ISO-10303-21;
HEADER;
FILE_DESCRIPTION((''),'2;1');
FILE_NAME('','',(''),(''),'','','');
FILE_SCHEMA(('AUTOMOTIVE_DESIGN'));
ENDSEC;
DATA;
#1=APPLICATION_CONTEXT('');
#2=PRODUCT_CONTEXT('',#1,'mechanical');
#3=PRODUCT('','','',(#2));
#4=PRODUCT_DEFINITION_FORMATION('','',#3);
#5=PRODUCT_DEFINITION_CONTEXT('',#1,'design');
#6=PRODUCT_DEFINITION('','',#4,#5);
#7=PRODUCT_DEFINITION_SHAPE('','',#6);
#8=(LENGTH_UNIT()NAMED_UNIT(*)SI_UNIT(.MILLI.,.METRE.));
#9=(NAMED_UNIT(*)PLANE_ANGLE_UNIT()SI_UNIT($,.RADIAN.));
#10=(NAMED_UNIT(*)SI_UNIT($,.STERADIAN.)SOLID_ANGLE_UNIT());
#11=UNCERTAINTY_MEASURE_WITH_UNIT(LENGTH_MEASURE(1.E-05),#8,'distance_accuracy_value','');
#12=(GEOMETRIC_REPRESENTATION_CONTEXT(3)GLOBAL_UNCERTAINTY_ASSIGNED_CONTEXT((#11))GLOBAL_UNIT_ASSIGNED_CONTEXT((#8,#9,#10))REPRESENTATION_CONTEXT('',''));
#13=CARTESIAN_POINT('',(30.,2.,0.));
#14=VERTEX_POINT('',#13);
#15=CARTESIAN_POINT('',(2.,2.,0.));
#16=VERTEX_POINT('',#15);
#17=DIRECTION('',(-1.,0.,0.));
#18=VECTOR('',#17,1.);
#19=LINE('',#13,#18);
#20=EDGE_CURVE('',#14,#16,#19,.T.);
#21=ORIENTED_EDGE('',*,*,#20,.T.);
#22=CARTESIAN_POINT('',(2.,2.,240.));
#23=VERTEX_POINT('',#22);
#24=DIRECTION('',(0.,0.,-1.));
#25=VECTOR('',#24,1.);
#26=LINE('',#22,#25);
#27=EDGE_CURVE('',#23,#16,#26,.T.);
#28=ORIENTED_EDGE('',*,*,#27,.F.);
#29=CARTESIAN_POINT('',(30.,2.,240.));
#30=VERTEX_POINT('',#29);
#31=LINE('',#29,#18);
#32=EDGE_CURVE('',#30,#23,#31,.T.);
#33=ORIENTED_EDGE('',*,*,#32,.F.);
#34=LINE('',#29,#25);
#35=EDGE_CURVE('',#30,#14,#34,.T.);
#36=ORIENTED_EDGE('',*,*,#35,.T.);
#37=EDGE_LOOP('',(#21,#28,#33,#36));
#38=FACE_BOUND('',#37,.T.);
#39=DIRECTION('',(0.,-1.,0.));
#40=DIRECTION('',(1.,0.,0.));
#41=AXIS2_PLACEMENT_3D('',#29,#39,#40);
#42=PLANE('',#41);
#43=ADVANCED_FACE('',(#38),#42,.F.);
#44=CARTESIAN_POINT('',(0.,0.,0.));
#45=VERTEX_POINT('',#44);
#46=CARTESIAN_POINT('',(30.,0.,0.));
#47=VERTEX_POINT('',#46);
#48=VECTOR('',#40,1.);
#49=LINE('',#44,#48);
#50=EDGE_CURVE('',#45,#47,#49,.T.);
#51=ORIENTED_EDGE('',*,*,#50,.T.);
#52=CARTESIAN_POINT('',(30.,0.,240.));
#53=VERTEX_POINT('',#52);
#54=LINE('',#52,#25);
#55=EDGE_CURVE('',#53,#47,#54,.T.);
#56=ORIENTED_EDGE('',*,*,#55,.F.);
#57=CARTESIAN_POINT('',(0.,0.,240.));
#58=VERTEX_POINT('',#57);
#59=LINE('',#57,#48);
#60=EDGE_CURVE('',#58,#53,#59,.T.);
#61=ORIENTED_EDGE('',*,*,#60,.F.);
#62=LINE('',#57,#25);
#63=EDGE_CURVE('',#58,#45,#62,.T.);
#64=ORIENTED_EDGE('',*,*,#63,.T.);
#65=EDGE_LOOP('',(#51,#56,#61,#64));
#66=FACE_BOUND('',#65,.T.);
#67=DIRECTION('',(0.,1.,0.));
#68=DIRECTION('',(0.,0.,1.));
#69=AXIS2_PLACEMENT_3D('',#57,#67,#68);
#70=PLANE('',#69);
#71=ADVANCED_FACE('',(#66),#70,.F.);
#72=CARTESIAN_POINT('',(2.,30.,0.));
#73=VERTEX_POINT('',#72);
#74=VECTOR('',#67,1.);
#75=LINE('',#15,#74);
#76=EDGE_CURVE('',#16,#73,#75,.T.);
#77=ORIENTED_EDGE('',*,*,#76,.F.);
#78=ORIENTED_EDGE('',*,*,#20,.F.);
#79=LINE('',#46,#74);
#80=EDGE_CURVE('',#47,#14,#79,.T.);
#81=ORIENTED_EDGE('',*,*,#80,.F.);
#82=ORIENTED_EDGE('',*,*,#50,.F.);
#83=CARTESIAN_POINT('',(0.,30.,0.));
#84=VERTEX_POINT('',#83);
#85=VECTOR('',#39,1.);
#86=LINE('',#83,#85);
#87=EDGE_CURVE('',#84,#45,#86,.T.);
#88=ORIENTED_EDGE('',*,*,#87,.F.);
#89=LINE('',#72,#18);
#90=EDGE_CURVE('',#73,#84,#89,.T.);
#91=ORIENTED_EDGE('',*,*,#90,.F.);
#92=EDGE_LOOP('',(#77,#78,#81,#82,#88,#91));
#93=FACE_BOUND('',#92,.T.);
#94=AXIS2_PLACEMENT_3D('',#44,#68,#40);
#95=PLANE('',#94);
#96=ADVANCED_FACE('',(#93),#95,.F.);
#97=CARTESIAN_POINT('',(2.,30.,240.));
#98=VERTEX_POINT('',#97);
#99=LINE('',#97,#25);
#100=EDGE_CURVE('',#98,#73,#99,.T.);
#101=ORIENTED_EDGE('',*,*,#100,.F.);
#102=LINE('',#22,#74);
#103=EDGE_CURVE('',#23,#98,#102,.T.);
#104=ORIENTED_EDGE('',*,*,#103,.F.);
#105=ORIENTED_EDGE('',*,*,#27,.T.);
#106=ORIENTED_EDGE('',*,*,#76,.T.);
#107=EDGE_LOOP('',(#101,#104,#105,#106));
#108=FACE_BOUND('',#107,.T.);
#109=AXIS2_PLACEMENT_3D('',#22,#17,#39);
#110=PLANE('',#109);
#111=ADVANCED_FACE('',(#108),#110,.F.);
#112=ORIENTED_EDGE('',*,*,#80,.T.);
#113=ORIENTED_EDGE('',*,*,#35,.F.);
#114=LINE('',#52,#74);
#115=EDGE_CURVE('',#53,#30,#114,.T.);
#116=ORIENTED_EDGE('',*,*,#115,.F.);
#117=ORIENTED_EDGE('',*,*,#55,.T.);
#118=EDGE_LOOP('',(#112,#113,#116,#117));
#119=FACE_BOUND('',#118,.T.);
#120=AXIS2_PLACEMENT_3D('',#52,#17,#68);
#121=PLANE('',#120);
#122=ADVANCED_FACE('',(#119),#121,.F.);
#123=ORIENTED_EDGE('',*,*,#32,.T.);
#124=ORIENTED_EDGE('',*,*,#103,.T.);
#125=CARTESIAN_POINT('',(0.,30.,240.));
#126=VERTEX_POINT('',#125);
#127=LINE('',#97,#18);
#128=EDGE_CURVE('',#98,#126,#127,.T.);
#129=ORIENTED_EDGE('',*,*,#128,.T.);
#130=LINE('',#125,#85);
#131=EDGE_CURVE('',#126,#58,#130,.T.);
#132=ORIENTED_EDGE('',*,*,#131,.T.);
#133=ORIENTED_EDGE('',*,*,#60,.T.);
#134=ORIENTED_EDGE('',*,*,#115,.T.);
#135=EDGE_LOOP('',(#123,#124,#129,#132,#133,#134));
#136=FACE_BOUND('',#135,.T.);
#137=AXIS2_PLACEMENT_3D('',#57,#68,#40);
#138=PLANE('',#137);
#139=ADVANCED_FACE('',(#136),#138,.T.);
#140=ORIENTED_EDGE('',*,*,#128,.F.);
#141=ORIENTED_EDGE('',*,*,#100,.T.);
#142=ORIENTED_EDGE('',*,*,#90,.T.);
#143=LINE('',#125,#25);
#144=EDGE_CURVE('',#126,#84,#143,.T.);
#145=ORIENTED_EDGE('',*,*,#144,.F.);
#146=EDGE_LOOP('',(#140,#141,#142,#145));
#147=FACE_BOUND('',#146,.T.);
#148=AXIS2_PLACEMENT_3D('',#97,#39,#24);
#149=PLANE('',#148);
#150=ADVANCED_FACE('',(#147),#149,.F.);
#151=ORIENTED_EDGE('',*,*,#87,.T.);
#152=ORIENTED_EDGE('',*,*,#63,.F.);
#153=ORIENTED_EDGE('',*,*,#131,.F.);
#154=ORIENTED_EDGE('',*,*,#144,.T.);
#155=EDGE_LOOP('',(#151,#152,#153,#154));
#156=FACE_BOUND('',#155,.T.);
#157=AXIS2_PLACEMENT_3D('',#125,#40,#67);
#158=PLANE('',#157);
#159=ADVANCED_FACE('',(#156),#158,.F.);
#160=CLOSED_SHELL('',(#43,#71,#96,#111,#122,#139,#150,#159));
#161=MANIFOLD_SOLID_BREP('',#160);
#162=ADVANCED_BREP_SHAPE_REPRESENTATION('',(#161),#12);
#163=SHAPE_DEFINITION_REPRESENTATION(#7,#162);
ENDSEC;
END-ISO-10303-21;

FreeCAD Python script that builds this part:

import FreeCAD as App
import Part
import Sketcher

doc = App.newDocument("Part")
params = doc.addObject("Spreadsheet::Sheet", "Params")
for row, (alias, value) in enumerate([
    ("sketch1_width", "30 mm"),
    ("sketch1_width2", "28 mm"),
    ("pad1_length", "240 mm"),
], start=1):
    params.set(f"A{row}", alias)
    params.set(f"B{row}", "=" + value)
    params.setAlias(f"B{row}", alias)

body = doc.addObject("PartDesign::Body", "Body")

sketch1 = body.newObject("Sketcher::SketchObject", "Sketch")
sketch1.AttachmentSupport = (doc.getObject("XY_Plane"), [""])
sketch1.MapMode = "FlatFace"
sketch1.addGeometry(Part.LineSegment(App.Vector(0, 0, 0), App.Vector(30, 0, 0)), False)
sketch1.addGeometry(Part.LineSegment(App.Vector(30, 0, 0), App.Vector(30, 2, 0)), False)
sketch1.addGeometry(Part.LineSegment(App.Vector(30, 2, 0), App.Vector(2, 2, 0)), False)
sketch1.addGeometry(Part.LineSegment(App.Vector(2, 2, 0), App.Vector(2, 30, 0)), False)
sketch1.addGeometry(Part.LineSegment(App.Vector(2, 30, 0), App.Vector(0, 30, 0)), False)
sketch1.addGeometry(Part.LineSegment(App.Vector(0, 30, 0), App.Vector(0, 0, 0)), False)
sketch1.addConstraint(Sketcher.Constraint("Coincident", 0, 2, 1, 1))
sketch1.addConstraint(Sketcher.Constraint("Coincident", 1, 2, 2, 1))
sketch1.addConstraint(Sketcher.Constraint("Coincident", 2, 2, 3, 1))
sketch1.addConstraint(Sketcher.Constraint("Coincident", 3, 2, 4, 1))
sketch1.addConstraint(Sketcher.Constraint("Coincident", 4, 2, 5, 1))
sketch1.addConstraint(Sketcher.Constraint("Coincident", 5, 2, 0, 1))
sketch1.addConstraint(Sketcher.Constraint("Horizontal", 0))
sketch1.addConstraint(Sketcher.Constraint("Vertical", 1))
sketch1.addConstraint(Sketcher.Constraint("Horizontal", 2))
sketch1.addConstraint(Sketcher.Constraint("Vertical", 3))
sketch1.addConstraint(Sketcher.Constraint("Horizontal", 4))
sketch1.addConstraint(Sketcher.Constraint("Vertical", 5))
sketch1.addConstraint(Sketcher.Constraint("Coincident", 5, 2, -1, 1))
sketch1.addConstraint(Sketcher.Constraint("Equal", 4, 1))
sketch1.addConstraint(Sketcher.Constraint("Equal", 2, 3))
sketch1.addConstraint(Sketcher.Constraint("DistanceX", 0, 1, 0, 2, 30.0))
sketch1.addConstraint(Sketcher.Constraint("DistanceX", 2, 2, 2, 1, 28.0))
sketch1.setExpression("Constraints[15]", "Params.sketch1_width")
sketch1.setExpression("Constraints[16]", "Params.sketch1_width2")
pad1 = body.newObject("PartDesign::Pad", "Pad")
pad1.Profile = sketch1
pad1.setExpression("Length", "Params.pad1_length")

doc.recompute()
